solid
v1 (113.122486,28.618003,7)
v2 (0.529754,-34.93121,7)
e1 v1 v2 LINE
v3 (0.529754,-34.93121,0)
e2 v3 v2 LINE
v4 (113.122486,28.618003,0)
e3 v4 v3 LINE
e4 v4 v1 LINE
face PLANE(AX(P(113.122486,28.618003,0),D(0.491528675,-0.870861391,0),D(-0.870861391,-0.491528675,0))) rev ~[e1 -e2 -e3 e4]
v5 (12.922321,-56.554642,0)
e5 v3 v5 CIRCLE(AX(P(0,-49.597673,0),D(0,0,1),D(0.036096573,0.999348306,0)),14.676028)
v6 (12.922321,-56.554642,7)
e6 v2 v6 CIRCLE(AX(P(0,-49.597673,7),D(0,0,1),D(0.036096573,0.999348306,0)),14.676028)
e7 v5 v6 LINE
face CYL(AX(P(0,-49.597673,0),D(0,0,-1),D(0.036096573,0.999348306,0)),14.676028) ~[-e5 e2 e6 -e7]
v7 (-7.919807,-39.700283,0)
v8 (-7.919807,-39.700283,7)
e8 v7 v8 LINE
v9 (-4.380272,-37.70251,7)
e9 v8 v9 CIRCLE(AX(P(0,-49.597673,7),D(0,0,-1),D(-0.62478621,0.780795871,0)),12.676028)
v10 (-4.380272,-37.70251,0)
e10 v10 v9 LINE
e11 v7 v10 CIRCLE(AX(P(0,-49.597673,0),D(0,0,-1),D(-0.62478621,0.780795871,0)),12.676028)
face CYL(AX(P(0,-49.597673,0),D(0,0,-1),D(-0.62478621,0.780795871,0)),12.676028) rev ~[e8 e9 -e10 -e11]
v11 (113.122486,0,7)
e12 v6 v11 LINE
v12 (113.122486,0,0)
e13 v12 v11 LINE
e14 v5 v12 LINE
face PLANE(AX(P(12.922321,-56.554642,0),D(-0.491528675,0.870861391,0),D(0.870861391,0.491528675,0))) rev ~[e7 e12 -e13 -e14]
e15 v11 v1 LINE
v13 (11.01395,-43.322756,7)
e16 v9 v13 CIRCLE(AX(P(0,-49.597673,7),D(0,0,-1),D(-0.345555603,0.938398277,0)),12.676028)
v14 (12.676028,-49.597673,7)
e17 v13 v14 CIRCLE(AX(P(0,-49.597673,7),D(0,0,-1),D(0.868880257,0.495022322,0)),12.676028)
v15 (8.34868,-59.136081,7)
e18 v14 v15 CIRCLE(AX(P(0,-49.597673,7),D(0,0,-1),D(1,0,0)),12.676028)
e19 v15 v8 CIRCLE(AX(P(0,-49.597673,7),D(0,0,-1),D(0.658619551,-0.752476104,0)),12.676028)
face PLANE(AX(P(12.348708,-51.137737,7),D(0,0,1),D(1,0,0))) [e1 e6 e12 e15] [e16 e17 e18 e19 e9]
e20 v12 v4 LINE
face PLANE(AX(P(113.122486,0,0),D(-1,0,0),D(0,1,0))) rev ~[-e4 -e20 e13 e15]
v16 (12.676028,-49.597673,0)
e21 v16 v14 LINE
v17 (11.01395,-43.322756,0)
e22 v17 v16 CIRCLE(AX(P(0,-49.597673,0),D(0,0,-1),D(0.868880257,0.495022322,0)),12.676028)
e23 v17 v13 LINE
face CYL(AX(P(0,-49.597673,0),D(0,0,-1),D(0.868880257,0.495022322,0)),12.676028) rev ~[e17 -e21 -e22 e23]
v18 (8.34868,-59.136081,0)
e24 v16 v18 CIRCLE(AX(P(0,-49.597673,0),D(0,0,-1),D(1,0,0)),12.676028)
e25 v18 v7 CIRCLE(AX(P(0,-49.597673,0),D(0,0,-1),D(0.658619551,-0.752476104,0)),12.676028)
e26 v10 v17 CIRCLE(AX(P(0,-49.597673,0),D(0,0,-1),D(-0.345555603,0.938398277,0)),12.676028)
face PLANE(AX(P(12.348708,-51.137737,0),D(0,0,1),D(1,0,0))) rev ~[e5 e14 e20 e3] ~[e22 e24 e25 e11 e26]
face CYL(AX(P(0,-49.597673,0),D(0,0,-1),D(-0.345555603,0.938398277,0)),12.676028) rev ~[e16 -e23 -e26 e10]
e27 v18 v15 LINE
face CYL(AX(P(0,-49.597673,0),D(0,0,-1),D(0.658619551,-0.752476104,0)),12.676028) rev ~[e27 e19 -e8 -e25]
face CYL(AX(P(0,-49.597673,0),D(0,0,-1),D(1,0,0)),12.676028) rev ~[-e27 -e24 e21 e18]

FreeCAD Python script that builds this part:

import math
import FreeCAD as App
import Part
import Sketcher

V = App.Vector
Q = App.Units.Quantity

doc = App.newDocument("Part")
params = doc.addObject("Spreadsheet::Sheet", "Params")
for row, (alias, value) in enumerate([
    ("pad1_length", "7 mm"),
], start=1):
    params.set(f"A{row}", alias)
    params.set(f"B{row}", "=" + value)
    params.setAlias(f"B{row}", alias)

body = doc.addObject("PartDesign::Body", "Body")

# Sketch on XY plane
sketch1 = body.newObject("Sketcher::SketchObject", "Sketch")
sketch1.AttachmentSupport = (doc.getObject("XY_Plane"), [""])
sketch1.MapMode = "FlatFace"
sketch1.addGeometry([
    Part.LineSegment(V(113.1, 28.6, 0), V(0.5, -34.9, 0)),  # 0
    Part.ArcOfCircle(Part.Circle(V(0, -49.6, 0), V(0, 0, 1), 14.7), math.radians(88), math.radians(332)),  # 1
    Part.LineSegment(V(12.9, -56.6, 0), V(113.1, 0, 0)),  # 2
    Part.LineSegment(V(113.1, 0, 0), V(113.1, 28.6, 0)),  # 3
    Part.ArcOfCircle(Part.Circle(V(0, -49.6, 0), V(0, 0, 1), 12.7), math.radians(0), math.radians(30)),  # 4
    Part.ArcOfCircle(Part.Circle(V(0, -49.6, 0), V(0, 0, 1), 12.7), math.radians(-49), math.radians(0)),  # 5
    Part.ArcOfCircle(Part.Circle(V(0, -49.6, 0), V(0, 0, 1), 12.7), math.radians(129), math.radians(311)),  # 6
    Part.ArcOfCircle(Part.Circle(V(0, -49.6, 0), V(0, 0, 1), 12.7), math.radians(110.22), math.radians(128.67)),  # 7
    Part.ArcOfCircle(Part.Circle(V(0, -49.6, 0), V(0, 0, 1), 12.7), math.radians(30), math.radians(110)),  # 8
], False)
sketch1.addConstraint([
    Sketcher.Constraint("Coincident", 0, 2, 1, 1),
    Sketcher.Constraint("Coincident", 1, 2, 2, 1),
    Sketcher.Constraint("Coincident", 2, 2, 3, 1),
    Sketcher.Constraint("Coincident", 3, 2, 0, 1),
    Sketcher.Constraint("Tangent", 4, 1, 5, 2),
    Sketcher.Constraint("Tangent", 5, 1, 6, 2),
    Sketcher.Constraint("Tangent", 6, 1, 7, 2),
    Sketcher.Constraint("Tangent", 7, 1, 8, 2),
    Sketcher.Constraint("Tangent", 8, 1, 4, 2),
    Sketcher.Constraint("Vertical", 3),
    Sketcher.Constraint("Coincident", 4, 3, 1, 3),
    Sketcher.Constraint("Coincident", 6, 3, 1, 3),
    Sketcher.Constraint("PointOnObject", 1, 3, -2),
    Sketcher.Constraint("PointOnObject", 2, 2, -1),
    Sketcher.Constraint("Parallel", 0, 2),
    Sketcher.Constraint("Horizontal", 8, 3, 4, 1),
    Sketcher.Constraint("Radius", 1, Q("14.676028 mm")),
    Sketcher.Constraint("Radius", 4, Q("12.676028 mm")),
    Sketcher.Constraint("DistanceY", 7, 1, 0, 2, Q("2.771301 mm")),
    Sketcher.Constraint("DistanceY", 3, 1, 3, 2, Q("28.618003 mm")),
    Sketcher.Constraint("DistanceY", 0, 2, -1, 1, Q("34.93121 mm")),
    Sketcher.Constraint("DistanceX", -1, 1, 1, 2, Q("12.922321 mm")),
    Sketcher.Constraint("DistanceX", -1, 1, 5, 1, Q("8.34868 mm")),
    Sketcher.Constraint("DistanceX", -1, 1, 8, 1, Q("11.01395 mm")),
    Sketcher.Constraint("DistanceX", 0, 2, 2, 2, Q("112.592731 mm")),
    Sketcher.Constraint("DistanceX", 6, 1, 0, 2, Q("8.449562 mm")),
])
pad1 = body.newObject("PartDesign::Pad", "Pad")
pad1.Profile = sketch1
pad1.setExpression("Length", "Params.pad1_length")

doc.recompute()
